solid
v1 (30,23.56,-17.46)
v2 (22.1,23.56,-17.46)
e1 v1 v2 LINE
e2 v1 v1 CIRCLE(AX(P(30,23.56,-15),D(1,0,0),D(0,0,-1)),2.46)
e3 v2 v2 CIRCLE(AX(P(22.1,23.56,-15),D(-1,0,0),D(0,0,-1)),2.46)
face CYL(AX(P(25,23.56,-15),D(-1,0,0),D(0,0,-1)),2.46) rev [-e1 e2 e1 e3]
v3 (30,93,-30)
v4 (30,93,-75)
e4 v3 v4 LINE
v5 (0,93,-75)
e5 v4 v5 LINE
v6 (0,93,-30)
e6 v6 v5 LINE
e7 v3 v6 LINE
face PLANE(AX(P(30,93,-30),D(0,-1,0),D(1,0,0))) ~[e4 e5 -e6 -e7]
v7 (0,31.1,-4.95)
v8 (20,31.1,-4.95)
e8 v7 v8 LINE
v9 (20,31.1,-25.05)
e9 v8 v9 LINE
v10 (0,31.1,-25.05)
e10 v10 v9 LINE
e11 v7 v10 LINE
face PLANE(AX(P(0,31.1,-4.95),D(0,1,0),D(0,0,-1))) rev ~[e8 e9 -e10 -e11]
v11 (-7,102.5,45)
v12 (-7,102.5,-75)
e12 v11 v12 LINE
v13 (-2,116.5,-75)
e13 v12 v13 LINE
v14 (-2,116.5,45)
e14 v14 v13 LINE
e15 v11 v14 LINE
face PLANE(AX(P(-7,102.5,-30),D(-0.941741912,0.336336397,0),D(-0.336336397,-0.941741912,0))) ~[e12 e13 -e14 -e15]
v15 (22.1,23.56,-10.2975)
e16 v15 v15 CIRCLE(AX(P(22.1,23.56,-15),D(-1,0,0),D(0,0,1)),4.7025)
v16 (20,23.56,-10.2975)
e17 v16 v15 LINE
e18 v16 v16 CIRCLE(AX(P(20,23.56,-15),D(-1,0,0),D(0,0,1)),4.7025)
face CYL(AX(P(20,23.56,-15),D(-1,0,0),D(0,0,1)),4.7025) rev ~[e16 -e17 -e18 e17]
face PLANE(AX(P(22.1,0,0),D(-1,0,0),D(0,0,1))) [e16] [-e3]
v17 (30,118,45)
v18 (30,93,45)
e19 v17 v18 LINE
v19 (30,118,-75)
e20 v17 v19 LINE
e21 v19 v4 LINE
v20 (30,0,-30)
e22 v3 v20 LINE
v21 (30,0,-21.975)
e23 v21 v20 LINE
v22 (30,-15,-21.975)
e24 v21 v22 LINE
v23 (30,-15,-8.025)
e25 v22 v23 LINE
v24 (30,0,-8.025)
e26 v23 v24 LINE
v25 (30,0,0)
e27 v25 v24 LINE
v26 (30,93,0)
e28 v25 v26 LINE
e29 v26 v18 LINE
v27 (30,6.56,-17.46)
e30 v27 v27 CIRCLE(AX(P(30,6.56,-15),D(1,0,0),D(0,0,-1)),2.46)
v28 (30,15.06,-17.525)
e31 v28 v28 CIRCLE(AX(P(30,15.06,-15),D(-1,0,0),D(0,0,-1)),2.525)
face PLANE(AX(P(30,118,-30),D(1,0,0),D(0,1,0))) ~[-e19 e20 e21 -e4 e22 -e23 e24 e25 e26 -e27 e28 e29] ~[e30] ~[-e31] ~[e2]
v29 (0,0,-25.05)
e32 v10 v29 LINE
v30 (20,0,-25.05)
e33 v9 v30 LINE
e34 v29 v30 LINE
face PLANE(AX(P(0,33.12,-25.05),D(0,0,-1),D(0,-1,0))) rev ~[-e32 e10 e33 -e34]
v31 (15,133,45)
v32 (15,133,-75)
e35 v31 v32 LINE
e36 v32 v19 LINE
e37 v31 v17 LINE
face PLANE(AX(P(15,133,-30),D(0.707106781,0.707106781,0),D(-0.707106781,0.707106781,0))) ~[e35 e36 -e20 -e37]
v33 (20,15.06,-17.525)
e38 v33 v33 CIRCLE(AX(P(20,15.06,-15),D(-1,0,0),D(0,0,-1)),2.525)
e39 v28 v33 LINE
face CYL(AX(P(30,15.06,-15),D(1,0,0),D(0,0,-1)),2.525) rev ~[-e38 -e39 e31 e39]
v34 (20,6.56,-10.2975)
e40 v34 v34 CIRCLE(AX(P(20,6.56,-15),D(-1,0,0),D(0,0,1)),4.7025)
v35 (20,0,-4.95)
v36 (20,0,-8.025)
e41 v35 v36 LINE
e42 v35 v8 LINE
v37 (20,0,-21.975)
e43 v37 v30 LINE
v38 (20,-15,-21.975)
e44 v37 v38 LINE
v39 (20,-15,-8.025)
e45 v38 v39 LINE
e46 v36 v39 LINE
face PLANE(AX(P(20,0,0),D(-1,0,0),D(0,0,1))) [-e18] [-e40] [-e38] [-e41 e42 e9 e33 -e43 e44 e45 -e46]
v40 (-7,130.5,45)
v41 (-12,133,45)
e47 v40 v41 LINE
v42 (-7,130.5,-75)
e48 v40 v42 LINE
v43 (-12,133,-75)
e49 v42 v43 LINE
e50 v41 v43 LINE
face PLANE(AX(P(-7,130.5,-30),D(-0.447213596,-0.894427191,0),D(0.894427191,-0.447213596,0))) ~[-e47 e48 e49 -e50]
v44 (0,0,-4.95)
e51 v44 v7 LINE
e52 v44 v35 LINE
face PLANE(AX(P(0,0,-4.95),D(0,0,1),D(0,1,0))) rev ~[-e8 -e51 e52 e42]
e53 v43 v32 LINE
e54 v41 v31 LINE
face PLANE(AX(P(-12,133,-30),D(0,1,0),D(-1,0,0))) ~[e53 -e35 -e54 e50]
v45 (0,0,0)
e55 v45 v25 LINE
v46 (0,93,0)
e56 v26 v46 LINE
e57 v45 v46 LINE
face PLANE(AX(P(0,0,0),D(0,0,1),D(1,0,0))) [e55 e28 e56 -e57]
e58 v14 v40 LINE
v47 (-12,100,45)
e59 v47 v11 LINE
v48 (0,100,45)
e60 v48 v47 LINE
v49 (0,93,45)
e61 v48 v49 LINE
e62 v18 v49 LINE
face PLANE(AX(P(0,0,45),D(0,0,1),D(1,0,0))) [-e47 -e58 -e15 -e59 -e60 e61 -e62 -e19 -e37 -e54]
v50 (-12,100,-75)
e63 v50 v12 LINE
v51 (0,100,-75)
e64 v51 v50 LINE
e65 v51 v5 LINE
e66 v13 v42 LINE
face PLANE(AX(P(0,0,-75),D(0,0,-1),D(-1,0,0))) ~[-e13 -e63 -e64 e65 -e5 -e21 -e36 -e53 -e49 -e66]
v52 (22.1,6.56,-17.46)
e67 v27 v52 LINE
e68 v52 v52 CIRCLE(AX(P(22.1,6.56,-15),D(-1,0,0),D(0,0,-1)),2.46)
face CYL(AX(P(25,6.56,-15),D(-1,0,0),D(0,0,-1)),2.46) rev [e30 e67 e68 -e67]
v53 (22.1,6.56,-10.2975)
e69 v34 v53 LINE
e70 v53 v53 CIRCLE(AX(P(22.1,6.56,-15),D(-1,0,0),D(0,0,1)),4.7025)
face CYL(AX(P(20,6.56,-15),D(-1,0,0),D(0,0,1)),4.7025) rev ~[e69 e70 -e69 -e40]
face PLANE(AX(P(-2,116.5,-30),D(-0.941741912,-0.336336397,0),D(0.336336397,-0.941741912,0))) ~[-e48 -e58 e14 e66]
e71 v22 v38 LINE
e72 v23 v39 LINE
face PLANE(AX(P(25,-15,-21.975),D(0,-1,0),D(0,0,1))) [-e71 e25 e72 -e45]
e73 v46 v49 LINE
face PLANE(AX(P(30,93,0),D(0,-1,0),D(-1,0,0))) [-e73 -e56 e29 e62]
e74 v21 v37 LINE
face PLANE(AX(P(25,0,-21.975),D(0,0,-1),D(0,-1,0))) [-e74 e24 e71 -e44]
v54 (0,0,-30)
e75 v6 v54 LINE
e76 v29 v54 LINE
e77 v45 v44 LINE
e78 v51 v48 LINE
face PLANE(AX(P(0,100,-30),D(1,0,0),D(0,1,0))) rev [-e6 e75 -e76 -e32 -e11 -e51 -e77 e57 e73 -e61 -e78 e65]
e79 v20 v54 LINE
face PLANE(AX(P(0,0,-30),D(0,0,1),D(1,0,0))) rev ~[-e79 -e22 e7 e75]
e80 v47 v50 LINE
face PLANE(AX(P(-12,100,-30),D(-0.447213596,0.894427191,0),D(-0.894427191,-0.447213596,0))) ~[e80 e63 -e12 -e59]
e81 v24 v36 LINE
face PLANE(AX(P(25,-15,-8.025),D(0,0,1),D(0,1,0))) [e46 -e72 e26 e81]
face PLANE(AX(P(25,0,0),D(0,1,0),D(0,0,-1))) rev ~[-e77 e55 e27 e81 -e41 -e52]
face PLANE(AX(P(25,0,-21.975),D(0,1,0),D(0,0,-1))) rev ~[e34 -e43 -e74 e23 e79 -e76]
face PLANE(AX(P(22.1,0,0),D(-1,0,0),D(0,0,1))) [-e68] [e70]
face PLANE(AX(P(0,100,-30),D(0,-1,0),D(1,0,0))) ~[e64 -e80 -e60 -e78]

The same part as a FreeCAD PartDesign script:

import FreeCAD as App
import Part
import Sketcher
from FreeCAD import Vector
Q = App.Units.Quantity

doc = App.newDocument("Part")
body = doc.addObject("PartDesign::Body", "Body")

sketch1 = body.newObject("Sketcher::SketchObject", "Sketch")
sketch1.AttachmentSupport = (doc.getObject("XY_Plane"), [""])
sketch1.MapMode = "FlatFace"
sketch1.addGeometry([
    Part.LineSegment(Vector(0, 40, 0), Vector(0, 0, 0)),
    Part.LineSegment(Vector(0, 0, 0), Vector(25, 0, 0)),
    Part.LineSegment(Vector(25, 0, 0), Vector(25, 40, 0)),
    Part.LineSegment(Vector(25, 40, 0), Vector(0, 40, 0)),
], False)
sketch1.addConstraint([
    Sketcher.Constraint("Coincident", 0, 2, 1, 1),
    Sketcher.Constraint("Coincident", 1, 2, 2, 1),
    Sketcher.Constraint("Coincident", 2, 2, 3, 1),
    Sketcher.Constraint("Coincident", 3, 2, 0, 1),
    Sketcher.Constraint("Vertical", 0),
    Sketcher.Constraint("Horizontal", 1),
    Sketcher.Constraint("Vertical", 2),
    Sketcher.Constraint("Horizontal", 3),
    Sketcher.Constraint("Coincident", 0, 2, -1, 1),
    Sketcher.Constraint("DistanceX", 1, 1, 1, 2, Q("25 mm")),
    Sketcher.Constraint("DistanceY", 0, 2, 0, 1, Q("40 mm")),
])
pad1 = body.newObject("PartDesign::Pad", "Pad")
pad1.Profile = sketch1
pad1.Length = 30
pad1.Reversed = True

sketch2 = body.newObject("Sketcher::SketchObject", "Sketch001")
sketch2.AttachmentSupport = (doc.getObject("YZ_Plane"), [""])
sketch2.MapMode = "FlatFace"
sketch2.AttachmentOffset = App.Placement(Vector(0, 0, 25), App.Rotation())
sketch2.addGeometry(Part.Circle(Vector(6.6, -15, 0), Vector(0, 0, 1), 2.5), False)
sketch2.addConstraint([
    Sketcher.Constraint("Diameter", 0, Q("4.92 mm")),
    Sketcher.Constraint("DistanceY", 0, 3, -1, 1, Q("15 mm")),
    Sketcher.Constraint("DistanceX", -1, 1, 0, 3, Q("6.56 mm")),
])
pocket1 = body.newObject("PartDesign::Pocket", "Pocket")
pocket1.Profile = sketch2
pocket1.Length = 30

sketch3 = body.newObject("Sketcher::SketchObject", "Sketch002")
sketch3.AttachmentSupport = (doc.getObject("YZ_Plane"), [""])
sketch3.MapMode = "FlatFace"
sketch3.addGeometry([
    Part.LineSegment(Vector(0, -25, 0), Vector(0, -5, 0)),
    Part.LineSegment(Vector(0, -5, 0), Vector(33, -5, 0)),
    Part.LineSegment(Vector(33, -5, 0), Vector(33, -25, 0)),
    Part.LineSegment(Vector(33, -25, 0), Vector(0, -25, 0)),
], False)
sketch3.addConstraint([
    Sketcher.Constraint("Coincident", 0, 2, 1, 1),
    Sketcher.Constraint("Coincident", 1, 2, 2, 1),
    Sketcher.Constraint("Coincident", 2, 2, 3, 1),
    Sketcher.Constraint("Coincident", 3, 2, 0, 1),
    Sketcher.Constraint("Vertical", 0),
    Sketcher.Constraint("Horizontal", 1),
    Sketcher.Constraint("Vertical", 2),
    Sketcher.Constraint("Horizontal", 3),
    Sketcher.Constraint("PointOnObject", 0, 2, -2),
    Sketcher.Constraint("DistanceY", 0, 1, 0, 2, Q("20.1 mm")),
    Sketcher.Constraint("DistanceX", 1, 1, 1, 2, Q("33.12 mm")),
    Sketcher.Constraint("DistanceY", 0, 2, -1, 1, Q("4.95 mm")),
])
pocket2 = body.newObject("PartDesign::Pocket", "Pocket001")
pocket2.Profile = sketch3
pocket2.Length = 20
pocket2.Reversed = True

sketch4 = body.newObject("Sketcher::SketchObject", "Sketch003")
sketch4.AttachmentSupport = (doc.getObject("XZ_Plane"), [""])
sketch4.MapMode = "FlatFace"
sketch4.addGeometry([
    Part.LineSegment(Vector(25, -8, 0), Vector(20, -8, 0)),
    Part.LineSegment(Vector(20, -8, 0), Vector(20, -22, 0)),
    Part.LineSegment(Vector(20, -22, 0), Vector(25, -22, 0)),
    Part.LineSegment(Vector(25, -22, 0), Vector(25, -8, 0)),
], False)
sketch4.addConstraint([
    Sketcher.Constraint("Coincident", 0, 2, 1, 1),
    Sketcher.Constraint("Coincident", 1, 2, 2, 1),
    Sketcher.Constraint("Coincident", 2, 2, 3, 1),
    Sketcher.Constraint("Coincident", 3, 2, 0, 1),
    Sketcher.Constraint("Horizontal", 0),
    Sketcher.Constraint("Vertical", 1),
    Sketcher.Constraint("Horizontal", 2),
    Sketcher.Constraint("Vertical", 3),
    Sketcher.Constraint("DistanceY", 1, 2, 1, 1, Q("13.95 mm")),
    Sketcher.Constraint("DistanceX", 0, 2, 0, 1, Q("5 mm")),
    Sketcher.Constraint("DistanceX", -1, 1, 0, 2, Q("20 mm")),
    Sketcher.Constraint("DistanceY", 0, 2, -1, 1, Q("8.025 mm")),
])
pad2 = body.newObject("PartDesign::Pad", "Pad001")
pad2.Profile = sketch4
pad2.Length = 15

sketch5 = body.newObject("Sketcher::SketchObject", "Sketch004")
sketch5.AttachmentSupport = (doc.getObject("YZ_Plane"), [""])
sketch5.MapMode = "FlatFace"
sketch5.AttachmentOffset = App.Placement(Vector(0, 0, 20), App.Rotation())
sketch5.addGeometry([
    Part.Circle(Vector(6.6, -15, 0), Vector(0, 0, 1), 4.7),
    Part.Circle(Vector(6.6, -15, 0), Vector(0, 0, 1), 2.5),
], False)
sketch5.addConstraint([
    Sketcher.Constraint("Coincident", 1, 3, 0, 3),
    Sketcher.Constraint("Diameter", 0, Q("9.405 mm")),
    Sketcher.Constraint("Diameter", 1, Q("4.92 mm")),
    Sketcher.Constraint("DistanceY", 0, 3, -1, 1, Q("15 mm")),
    Sketcher.Constraint("DistanceX", -1, 1, 0, 3, Q("6.56 mm")),
])
pocket3 = body.newObject("PartDesign::Pocket", "Pocket002")
pocket3.Profile = sketch5
pocket3.Length = 2.1
pocket3.Reversed = True

sketch6 = body.newObject("Sketcher::SketchObject", "Sketch005")
sketch6.AttachmentSupport = (doc.getObject("YZ_Plane"), [""])
sketch6.MapMode = "FlatFace"
sketch6.AttachmentOffset = App.Placement(Vector(0, 0, 25), App.Rotation())
sketch6.addGeometry(Part.Circle(Vector(23.6, -15, 0), Vector(0, 0, 1), 2.5), False)
sketch6.addConstraint([
    Sketcher.Constraint("Diameter", 0, Q("4.92 mm")),
    Sketcher.Constraint("DistanceY", 0, 3, -1, 1, Q("15 mm")),
    Sketcher.Constraint("DistanceX", -1, 1, 0, 3, Q("23.56 mm")),
])
pocket4 = body.newObject("PartDesign::Pocket", "Pocket003")
pocket4.Profile = sketch6
pocket4.Length = 10

sketch7 = body.newObject("Sketcher::SketchObject", "Sketch006")
sketch7.AttachmentSupport = (doc.getObject("YZ_Plane"), [""])
sketch7.MapMode = "FlatFace"
sketch7.AttachmentOffset = App.Placement(Vector(0, 0, 20), App.Rotation())
sketch7.addGeometry([
    Part.Circle(Vector(23.6, -15, 0), Vector(0, 0, 1), 4.7),
    Part.Circle(Vector(23.6, -15, 0), Vector(0, 0, 1), 2.5),
], False)
sketch7.addConstraint([
    Sketcher.Constraint("Coincident", 1, 3, 0, 3),
    Sketcher.Constraint("Diameter", 0, Q("9.405 mm")),
    Sketcher.Constraint("Diameter", 1, Q("4.92 mm")),
    Sketcher.Constraint("DistanceY", 0, 3, -1, 1, Q("15 mm")),
    Sketcher.Constraint("DistanceX", -1, 1, 0, 3, Q("23.56 mm")),
])
pocket5 = body.newObject("PartDesign::Pocket", "Pocket004")
pocket5.Profile = sketch7
pocket5.Length = 2.1
pocket5.Reversed = True

sketch8 = body.newObject("Sketcher::SketchObject", "Sketch007")
sketch8.AttachmentSupport = (doc.getObject("YZ_Plane"), [""])
sketch8.MapMode = "FlatFace"
sketch8.AttachmentOffset = App.Placement(Vector(0, 0, 25), App.Rotation())
sketch8.addGeometry([
    Part.LineSegment(Vector(0, -30, 0), Vector(40, -30, 0)),
    Part.LineSegment(Vector(40, -30, 0), Vector(40, 0, 0)),
    Part.LineSegment(Vector(40, 0, 0), Vector(0, 0, 0)),
    Part.LineSegment(Vector(0, 0, 0), Vector(0, -8, 0)),
    Part.LineSegment(Vector(0, -8, 0), Vector(-15, -8, 0)),
    Part.LineSegment(Vector(-15, -8, 0), Vector(-15, -22, 0)),
    Part.LineSegment(Vector(-15, -22, 0), Vector(0, -22, 0)),
    Part.LineSegment(Vector(0, -22, 0), Vector(0, -30, 0)),
    Part.Circle(Vector(6.6, -15, 0), Vector(0, 0, 1), 2.5),
    Part.Circle(Vector(23.6, -15, 0), Vector(0, 0, 1), 2.5),
], False)
sketch8.addConstraint([
    Sketcher.Constraint("Coincident", 0, 2, 1, 1),
    Sketcher.Constraint("Coincident", 1, 2, 2, 1),
    Sketcher.Constraint("Coincident", 2, 2, 3, 1),
    Sketcher.Constraint("Coincident", 3, 2, 4, 1),
    Sketcher.Constraint("Coincident", 4, 2, 5, 1),
    Sketcher.Constraint("Coincident", 5, 2, 6, 1),
    Sketcher.Constraint("Coincident", 6, 2, 7, 1),
    Sketcher.Constraint("Coincident", 7, 2, 0, 1),
    Sketcher.Constraint("Horizontal", 0),
    Sketcher.Constraint("Vertical", 1),
    Sketcher.Constraint("Horizontal", 2),
    Sketcher.Constraint("Vertical", 3),
    Sketcher.Constraint("Horizontal", 4),
    Sketcher.Constraint("Vertical", 5),
    Sketcher.Constraint("Horizontal", 6),
    Sketcher.Constraint("Vertical", 7),
    Sketcher.Constraint("Coincident", 2, 2, -1, 1),
    Sketcher.Constraint("Equal", 8, 9),
    Sketcher.Constraint("PointOnObject", 6, 2, -2),
    Sketcher.Constraint("Horizontal", 8, 3, 9, 3),
    Sketcher.Constraint("Equal", 3, 7),
    Sketcher.Constraint("Diameter", 8, Q("4.92 mm")),
    Sketcher.Constraint("DistanceX", 0, 1, 0, 2, Q("40 mm")),
    Sketcher.Constraint("DistanceX", 4, 2, 4, 1, Q("15 mm")),
    Sketcher.Constraint("DistanceY", 1, 1, 1, 2, Q("30 mm")),
    Sketcher.Constraint("DistanceY", 8, 3, -1, 1, Q("15 mm")),
    Sketcher.Constraint("DistanceX", 8, 3, 9, 3, Q("17 mm")),
    Sketcher.Constraint("DistanceY", 5, 2, 5, 1, Q("13.95 mm")),
    Sketcher.Constraint("DistanceX", -1, 1, 8, 3, Q("6.56 mm")),
])
pad3 = body.newObject("PartDesign::Pad", "Pad002")
pad3.Profile = sketch8
pad3.Length = 5

sketch9 = body.newObject("Sketcher::SketchObject", "Sketch008")
sketch9.AttachmentSupport = (doc.getObject("XZ_Plane"), [""])
sketch9.MapMode = "FlatFace"
sketch9.AttachmentOffset = App.Placement(Vector(0, 0, -40), App.Rotation())
sketch9.addGeometry([
    Part.LineSegment(Vector(30, -30, 0), Vector(0, -30, 0)),
    Part.LineSegment(Vector(0, -30, 0), Vector(0, 0, 0)),
    Part.LineSegment(Vector(0, 0, 0), Vector(30, 0, 0)),
    Part.LineSegment(Vector(30, 0, 0), Vector(30, -30, 0)),
], False)
sketch9.addConstraint([
    Sketcher.Constraint("Coincident", 0, 2, 1, 1),
    Sketcher.Constraint("Coincident", 1, 2, 2, 1),
    Sketcher.Constraint("Coincident", 2, 2, 3, 1),
    Sketcher.Constraint("Coincident", 3, 2, 0, 1),
    Sketcher.Constraint("Horizontal", 0),
    Sketcher.Constraint("Vertical", 1),
    Sketcher.Constraint("Horizontal", 2),
    Sketcher.Constraint("Vertical", 3),
    Sketcher.Constraint("Coincident", 1, 2, -1, 1),
    Sketcher.Constraint("Equal", 2, 1),
    Sketcher.Constraint("DistanceX", 0, 2, 0, 1, Q("30 mm")),
])
pad4 = body.newObject("PartDesign::Pad", "Pad003")
pad4.Profile = sketch9
pad4.Length = 30
pad4.Reversed = True

sketch10 = body.newObject("Sketcher::SketchObject", "Sketch009")
sketch10.AttachmentSupport = (doc.getObject("YZ_Plane"), [""])
sketch10.MapMode = "FlatFace"
sketch10.AttachmentOffset = App.Placement(Vector(0, 0, 30), App.Rotation())
sketch10.addGeometry(Part.Circle(Vector(15.1, -15, 0), Vector(0, 0, 1), 2.5), False)
sketch10.addConstraint([
    Sketcher.Constraint("Diameter", 0, Q("5.05 mm")),
    Sketcher.Constraint("DistanceY", 0, 3, -1, 1, Q("15 mm")),
    Sketcher.Constraint("DistanceX", -1, 1, 0, 3, Q("15.06 mm")),
])
pocket6 = body.newObject("PartDesign::Pocket", "Pocket005")
pocket6.Profile = sketch10
pocket6.Length = 30

sketch11 = body.newObject("Sketcher::SketchObject", "Sketch010")
sketch11.AttachmentSupport = (doc.getObject("XY_Plane"), [""])
sketch11.MapMode = "FlatFace"
sketch11.addGeometry([
    Part.LineSegment(Vector(0, 70, 0), Vector(30, 70, 0)),
    Part.LineSegment(Vector(30, 70, 0), Vector(30, 118, 0)),
    Part.LineSegment(Vector(30, 118, 0), Vector(15, 133, 0)),
    Part.LineSegment(Vector(15, 133, 0), Vector(-12, 133, 0)),
    Part.LineSegment(Vector(-12, 133, 0), Vector(-7, 130, 0)),
    Part.LineSegment(Vector(-7, 130, 0), Vector(-2, 116, 0)),
    Part.LineSegment(Vector(-2, 116, 0), Vector(-7, 102, 0)),
    Part.LineSegment(Vector(-7, 102, 0), Vector(-12, 100, 0)),
    Part.LineSegment(Vector(-12, 100, 0), Vector(0, 100, 0)),
    Part.LineSegment(Vector(0, 100, 0), Vector(0, 70, 0)),
], False)
sketch11.addConstraint([
    Sketcher.Constraint("Coincident", 0, 2, 1, 1),
    Sketcher.Constraint("Coincident", 1, 2, 2, 1),
    Sketcher.Constraint("Coincident", 2, 2, 3, 1),
    Sketcher.Constraint("Coincident", 3, 2, 4, 1),
    Sketcher.Constraint("Coincident", 4, 2, 5, 1),
    Sketcher.Constraint("Coincident", 5, 2, 6, 1),
    Sketcher.Constraint("Coincident", 6, 2, 7, 1),
    Sketcher.Constraint("Coincident", 7, 2, 8, 1),
    Sketcher.Constraint("Coincident", 8, 2, 9, 1),
    Sketcher.Constraint("Coincident", 9, 2, 0, 1),
    Sketcher.Constraint("Horizontal", 0),
    Sketcher.Constraint("Vertical", 1),
    Sketcher.Constraint("Horizontal", 3),
    Sketcher.Constraint("Horizontal", 8),
    Sketcher.Constraint("Vertical", 9),
    Sketcher.Constraint("PointOnObject", 8, 2, -2),
    Sketcher.Constraint("Vertical", 4, 2, 6, 2),
    Sketcher.Constraint("Vertical", 3, 2, 7, 2),
    Sketcher.Constraint("Equal", 0, 9),
    Sketcher.Constraint("Equal", 5, 6),
    Sketcher.Constraint("Equal", 4, 7),
    Sketcher.Constraint("DistanceX", 8, 1, 8, 2, Q("12 mm")),
    Sketcher.Constraint("DistanceX", 0, 1, 0, 2, Q("30 mm")),
    Sketcher.Constraint("DistanceX", 3, 2, 3, 1, Q("27 mm")),
    Sketcher.Constraint("DistanceY", 1, 1, 1, 2, Q("48 mm")),
    Sketcher.Constraint("Angle", 2, Q("135 deg")),
    Sketcher.Constraint("DistanceY", -1, 1, 0, 2, Q("70 mm")),
    Sketcher.Constraint("DistanceX", 4, 2, -1, 1, Q("7 mm")),
    Sketcher.Constraint("DistanceX", 5, 2, -1, 1, Q("2 mm")),
    Sketcher.Constraint("DistanceY", 5, 2, 4, 2, Q("14 mm")),
])
pad5 = body.newObject("PartDesign::Pad", "Pad004")
pad5.Profile = sketch11
pad5.Length = 30
pad5.Reversed = True

sketch12 = body.newObject("Sketcher::SketchObject", "Sketch011")
sketch12.AttachmentSupport = (doc.getObject("YZ_Plane"), [""])
sketch12.MapMode = "FlatFace"
sketch12.addGeometry([
    Part.LineSegment(Vector(33.1, -5, 0), Vector(33.1, -25.1, 0)),
    Part.LineSegment(Vector(33.1, -25.1, 0), Vector(31.1, -25.1, 0)),
    Part.LineSegment(Vector(31.1, -25.1, 0), Vector(31.1, -5, 0)),
    Part.LineSegment(Vector(31.1, -5, 0), Vector(33.1, -5, 0)),
], False)
sketch12.addConstraint([
    Sketcher.Constraint("Coincident", 0, 2, 1, 1),
    Sketcher.Constraint("Coincident", 1, 2, 2, 1),
    Sketcher.Constraint("Coincident", 2, 2, 3, 1),
    Sketcher.Constraint("Coincident", 3, 2, 0, 1),
    Sketcher.Constraint("Vertical", 0),
    Sketcher.Constraint("Horizontal", 1),
    Sketcher.Constraint("Vertical", 2),
    Sketcher.Constraint("Horizontal", 3),
    Sketcher.Constraint("DistanceX", 1, 2, 1, 1, Q("2.02 mm")),
    Sketcher.Constraint("DistanceY", 0, 2, 0, 1, Q("20.1 mm")),
    Sketcher.Constraint("DistanceX", -1, 1, 1, 2, Q("31.1 mm")),
    Sketcher.Constraint("DistanceY", 0, 2, -1, 1, Q("25.05 mm")),
])
pad6 = body.newObject("PartDesign::Pad", "Pad005")
pad6.Profile = sketch12
pad6.Length = 20

sketch13 = body.newObject("Sketcher::SketchObject", "Sketch012")
sketch13.AttachmentSupport = (doc.getObject("XY_Plane"), [""])
sketch13.MapMode = "FlatFace"
sketch13.addGeometry([
    Part.LineSegment(Vector(-12, 100, 0), Vector(0, 100, 0)),
    Part.LineSegment(Vector(0, 100, 0), Vector(0, 93, 0)),
    Part.LineSegment(Vector(0, 93, 0), Vector(30, 93, 0)),
    Part.LineSegment(Vector(30, 93, 0), Vector(30, 118, 0)),
    Part.LineSegment(Vector(30, 118, 0), Vector(15, 133, 0)),
    Part.LineSegment(Vector(15, 133, 0), Vector(-12, 133, 0)),
    Part.LineSegment(Vector(-12, 133, 0), Vector(-7, 130, 0)),
    Part.LineSegment(Vector(-7, 130, 0), Vector(-2, 116, 0)),
    Part.LineSegment(Vector(-2, 116, 0), Vector(-7, 102, 0)),
    Part.LineSegment(Vector(-7, 102, 0), Vector(-12, 100, 0)),
], False)
sketch13.addConstraint([
    Sketcher.Constraint("Coincident", 0, 2, 1, 1),
    Sketcher.Constraint("Coincident", 1, 2, 2, 1),
    Sketcher.Constraint("Coincident", 2, 2, 3, 1),
    Sketcher.Constraint("Coincident", 3, 2, 4, 1),
    Sketcher.Constraint("Coincident", 4, 2, 5, 1),
    Sketcher.Constraint("Coincident", 5, 2, 6, 1),
    Sketcher.Constraint("Coincident", 6, 2, 7, 1),
    Sketcher.Constraint("Coincident", 7, 2, 8, 1),
    Sketcher.Constraint("Coincident", 8, 2, 9, 1),
    Sketcher.Constraint("Coincident", 9, 2, 0, 1),
    Sketcher.Constraint("Horizontal", 0),
    Sketcher.Constraint("Vertical", 1),
    Sketcher.Constraint("Horizontal", 2),
    Sketcher.Constraint("Vertical", 3),
    Sketcher.Constraint("Horizontal", 5),
    Sketcher.Constraint("PointOnObject", 0, 2, -2),
    Sketcher.Constraint("Vertical", 6, 2, 8, 2),
    Sketcher.Constraint("Vertical", 5, 2, 9, 2),
    Sketcher.Constraint("Equal", 7, 8),
    Sketcher.Constraint("Equal", 6, 9),
    Sketcher.Constraint("DistanceY", 3, 1, 3, 2, Q("25 mm")),
    Sketcher.Constraint("DistanceX", 0, 1, 0, 2, Q("12 mm")),
    Sketcher.Constraint("DistanceX", 2, 1, 2, 2, Q("30 mm")),
    Sketcher.Constraint("DistanceX", 5, 2, 5, 1, Q("27 mm")),
    Sketcher.Constraint("DistanceY", 1, 2, 1, 1, Q("7 mm")),
    Sketcher.Constraint("Angle", 4, Q("135 deg")),
    Sketcher.Constraint("DistanceY", -1, 1, 0, 2, Q("100 mm")),
    Sketcher.Constraint("DistanceX", 6, 2, -1, 1, Q("7 mm")),
    Sketcher.Constraint("DistanceX", 7, 2, -1, 1, Q("2 mm")),
    Sketcher.Constraint("DistanceY", 7, 2, 6, 2, Q("14 mm")),
])
pad7 = body.newObject("PartDesign::Pad", "Pad006")
pad7.Profile = sketch13
pad7.Length = 45
doc.recompute()

datumplane = body.newObject("PartDesign::Plane", "DatumPlane")
datumplane.AttachmentSupport = (doc.getObject("XY_Plane"), [""])
datumplane.MapMode = "FlatFace"
datumplane.AttachmentOffset = App.Placement(Vector(0, 0, -15), App.Rotation())
mirrored = body.newObject("PartDesign::Mirrored", "Mirrored")
mirrored.Originals = [pad7]
mirrored.MirrorPlane = (datumplane, [""])
body.Tip = mirrored

doc.recompute()
